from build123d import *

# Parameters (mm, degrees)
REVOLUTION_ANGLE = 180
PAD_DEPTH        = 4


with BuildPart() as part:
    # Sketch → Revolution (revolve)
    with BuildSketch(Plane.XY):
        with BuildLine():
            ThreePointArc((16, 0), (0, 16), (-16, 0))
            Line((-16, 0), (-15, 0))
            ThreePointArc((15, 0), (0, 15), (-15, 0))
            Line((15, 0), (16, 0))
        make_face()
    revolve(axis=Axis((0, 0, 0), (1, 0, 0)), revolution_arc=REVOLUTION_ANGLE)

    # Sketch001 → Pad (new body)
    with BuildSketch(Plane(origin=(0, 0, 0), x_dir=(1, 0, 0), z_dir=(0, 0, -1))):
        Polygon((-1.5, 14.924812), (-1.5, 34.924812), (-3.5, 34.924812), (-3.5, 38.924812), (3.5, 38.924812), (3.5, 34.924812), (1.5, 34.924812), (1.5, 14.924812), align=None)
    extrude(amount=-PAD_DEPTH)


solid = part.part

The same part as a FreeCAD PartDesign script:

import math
import FreeCAD as App
import Part
import Sketcher
from FreeCAD import Vector
Q = App.Units.Quantity

doc = App.newDocument("Part")
body = doc.addObject("PartDesign::Body", "Body")

sketch1 = body.newObject("Sketcher::SketchObject", "Sketch")
sketch1.AttachmentSupport = (doc.getObject("XY_Plane"), [""])
sketch1.MapMode = "FlatFace"
sketch1.addGeometry(Part.ArcOfCircle(Part.Circle(Vector(0, 0, 0), Vector(0, 0, 1), 16), math.radians(0), math.radians(180)), False)
sketch1.addGeometry(Part.LineSegment(Vector(-16, 0, 0), Vector(-15, 0, 0)), False)
sketch1.addGeometry(Part.ArcOfCircle(Part.Circle(Vector(0, 0, 0), Vector(0, 0, 1), 15), math.radians(0), math.radians(180)), False)
sketch1.addGeometry(Part.LineSegment(Vector(15, 0, 0), Vector(16, 0, 0)), False)
sketch1.addConstraint(Sketcher.Constraint("Coincident", 0, 2, 1, 1))
sketch1.addConstraint(Sketcher.Constraint("Coincident", 1, 2, 2, 2))
sketch1.addConstraint(Sketcher.Constraint("Coincident", 2, 1, 3, 1))
sketch1.addConstraint(Sketcher.Constraint("Coincident", 3, 2, 0, 1))
sketch1.addConstraint(Sketcher.Constraint("Horizontal", 1))
sketch1.addConstraint(Sketcher.Constraint("Horizontal", 3))
sketch1.addConstraint(Sketcher.Constraint("Coincident", 0, 3, -1, 1))
sketch1.addConstraint(Sketcher.Constraint("Coincident", 2, 3, -1, 1))
sketch1.addConstraint(Sketcher.Constraint("PointOnObject", 0, 2, -1))
sketch1.addConstraint(Sketcher.Constraint("PointOnObject", 2, 1, -1))
sketch1.addConstraint(Sketcher.Constraint("Radius", 0, Q("16 mm")))
sketch1.addConstraint(Sketcher.Constraint("Radius", 2, Q("15 mm")))
revolution = body.newObject("PartDesign::Revolution", "Revolution")
revolution.Profile = sketch1
revolution.ReferenceAxis = (sketch1, ["H_Axis"])
revolution.Angle = 180

sketch2 = body.newObject("Sketcher::SketchObject", "Sketch001")
sketch2.AttachmentSupport = (doc.getObject("XY_Plane"), [""])
sketch2.MapMode = "FlatFace"
sketch2.addGeometry(Part.LineSegment(Vector(-1.5, -34.9, 0), Vector(-1.5, -14.9, 0)), False)
sketch2.addGeometry(Part.LineSegment(Vector(-1.5, -14.9, 0), Vector(1.5, -14.9, 0)), False)
sketch2.addGeometry(Part.LineSegment(Vector(1.5, -14.9, 0), Vector(1.5, -34.9, 0)), False)
sketch2.addGeometry(Part.LineSegment(Vector(1.5, -34.9, 0), Vector(3.5, -34.9, 0)), False)
sketch2.addGeometry(Part.LineSegment(Vector(3.5, -34.9, 0), Vector(3.5, -38.9, 0)), False)
sketch2.addGeometry(Part.LineSegment(Vector(3.5, -38.9, 0), Vector(-3.5, -38.9, 0)), False)
sketch2.addGeometry(Part.LineSegment(Vector(-3.5, -38.9, 0), Vector(-3.5, -34.9, 0)), False)
sketch2.addGeometry(Part.LineSegment(Vector(-3.5, -34.9, 0), Vector(-1.5, -34.9, 0)), False)
sketch2.addConstraint(Sketcher.Constraint("Coincident", 0, 2, 1, 1))
sketch2.addConstraint(Sketcher.Constraint("Coincident", 1, 2, 2, 1))
sketch2.addConstraint(Sketcher.Constraint("Coincident", 2, 2, 3, 1))
sketch2.addConstraint(Sketcher.Constraint("Coincident", 3, 2, 4, 1))
sketch2.addConstraint(Sketcher.Constraint("Coincident", 4, 2, 5, 1))
sketch2.addConstraint(Sketcher.Constraint("Coincident", 5, 2, 6, 1))
sketch2.addConstraint(Sketcher.Constraint("Coincident", 6, 2, 7, 1))
sketch2.addConstraint(Sketcher.Constraint("Coincident", 7, 2, 0, 1))
sketch2.addConstraint(Sketcher.Constraint("Vertical", 0))
sketch2.addConstraint(Sketcher.Constraint("Horizontal", 1))
sketch2.addConstraint(Sketcher.Constraint("Vertical", 2))
sketch2.addConstraint(Sketcher.Constraint("Horizontal", 3))
sketch2.addConstraint(Sketcher.Constraint("Vertical", 4))
sketch2.addConstraint(Sketcher.Constraint("Horizontal", 5))
sketch2.addConstraint(Sketcher.Constraint("Vertical", 6))
sketch2.addConstraint(Sketcher.Constraint("Horizontal", 7))
sketch2.addConstraint(Sketcher.Constraint("Symmetric", 3, 2, 6, 2, -2))
sketch2.addConstraint(Sketcher.Constraint("Equal", 3, 7))
sketch2.addConstraint(Sketcher.Constraint("DistanceX", 1, 1, 1, 2, Q("3 mm")))
sketch2.addConstraint(Sketcher.Constraint("DistanceX", 3, 1, 3, 2, Q("2 mm")))
sketch2.addConstraint(Sketcher.Constraint("DistanceY", 0, 1, 0, 2, Q("20 mm")))
sketch2.addConstraint(Sketcher.Constraint("DistanceY", 4, 2, 4, 1, Q("4 mm")))
sketch2.addConstraint(Sketcher.Constraint("DistanceY", 0, 2, -1, 1, Q("14.924812 mm")))
pad1 = body.newObject("PartDesign::Pad", "Pad")
pad1.Profile = sketch2
pad1.Length = 4

doc.recompute()
